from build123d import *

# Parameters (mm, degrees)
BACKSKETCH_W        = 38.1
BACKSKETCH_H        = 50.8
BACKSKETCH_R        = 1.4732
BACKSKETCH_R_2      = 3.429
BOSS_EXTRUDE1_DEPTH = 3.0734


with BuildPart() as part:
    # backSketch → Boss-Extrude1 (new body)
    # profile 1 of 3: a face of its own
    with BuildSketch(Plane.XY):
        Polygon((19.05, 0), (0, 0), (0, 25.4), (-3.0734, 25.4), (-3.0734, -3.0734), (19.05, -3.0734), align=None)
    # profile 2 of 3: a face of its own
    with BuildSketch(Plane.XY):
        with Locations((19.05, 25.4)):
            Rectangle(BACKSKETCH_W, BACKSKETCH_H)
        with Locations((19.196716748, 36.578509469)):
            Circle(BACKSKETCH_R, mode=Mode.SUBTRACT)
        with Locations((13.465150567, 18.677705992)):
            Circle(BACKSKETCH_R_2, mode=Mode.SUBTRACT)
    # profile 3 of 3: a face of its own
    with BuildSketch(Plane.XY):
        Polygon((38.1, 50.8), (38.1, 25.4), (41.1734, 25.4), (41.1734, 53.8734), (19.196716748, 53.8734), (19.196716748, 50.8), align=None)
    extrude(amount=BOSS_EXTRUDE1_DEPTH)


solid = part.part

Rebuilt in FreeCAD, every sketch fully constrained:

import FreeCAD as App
import Part
import Sketcher
Q = App.Units.Quantity

doc = App.newDocument("Part")
body = doc.addObject("PartDesign::Body", "Body")

sketch1 = doc.addObject("Sketcher::SketchObject", "Sketch")
body.addObject(sketch1)
sketch1.AttachmentSupport = (doc.XY_Plane, [""])
sketch1.MapMode = "FlatFace"
sketch1.addGeometry(Part.LineSegment(App.Vector(0, 25.4, 0), App.Vector(-3.0734, 25.4, 0)), False)
sketch1.addGeometry(Part.LineSegment(App.Vector(-3.0734, 25.4, 0), App.Vector(-3.0734, -3.0734, 0)), False)
sketch1.addGeometry(Part.LineSegment(App.Vector(-3.0734, -3.0734, 0), App.Vector(19.05, -3.0734, 0)), False)
sketch1.addGeometry(Part.LineSegment(App.Vector(19.05, -3.0734, 0), App.Vector(19.05, 0, 0)), False)
sketch1.addGeometry(Part.LineSegment(App.Vector(19.05, 0, 0), App.Vector(38.1, 0, 0)), False)
sketch1.addGeometry(Part.LineSegment(App.Vector(38.1, 0, 0), App.Vector(38.1, 25.4, 0)), False)
sketch1.addGeometry(Part.LineSegment(App.Vector(38.1, 25.4, 0), App.Vector(41.1734, 25.4, 0)), False)
sketch1.addGeometry(Part.LineSegment(App.Vector(41.1734, 25.4, 0), App.Vector(41.1734, 53.8734, 0)), False)
sketch1.addGeometry(Part.LineSegment(App.Vector(41.1734, 53.8734, 0), App.Vector(19.196717, 53.8734, 0)), False)
sketch1.addGeometry(Part.LineSegment(App.Vector(19.196717, 53.8734, 0), App.Vector(19.196717, 50.8, 0)), False)
sketch1.addGeometry(Part.LineSegment(App.Vector(19.196717, 50.8, 0), App.Vector(0, 50.8, 0)), False)
sketch1.addGeometry(Part.LineSegment(App.Vector(0, 50.8, 0), App.Vector(0, 25.4, 0)), False)
sketch1.addGeometry(Part.Circle(App.Vector(13.465151, 18.677706, 0), App.Vector(0, 0, 1), 3.429), False)
sketch1.addGeometry(Part.Circle(App.Vector(19.196717, 36.578509, 0), App.Vector(0, 0, 1), 1.4732), False)
sketch1.addConstraint(Sketcher.Constraint("Coincident", 0, 2, 1, 1))
sketch1.addConstraint(Sketcher.Constraint("Coincident", 1, 2, 2, 1))
sketch1.addConstraint(Sketcher.Constraint("Coincident", 2, 2, 3, 1))
sketch1.addConstraint(Sketcher.Constraint("Coincident", 3, 2, 4, 1))
sketch1.addConstraint(Sketcher.Constraint("Coincident", 4, 2, 5, 1))
sketch1.addConstraint(Sketcher.Constraint("Coincident", 5, 2, 6, 1))
sketch1.addConstraint(Sketcher.Constraint("Coincident", 6, 2, 7, 1))
sketch1.addConstraint(Sketcher.Constraint("Coincident", 7, 2, 8, 1))
sketch1.addConstraint(Sketcher.Constraint("Coincident", 8, 2, 9, 1))
sketch1.addConstraint(Sketcher.Constraint("Coincident", 9, 2, 10, 1))
sketch1.addConstraint(Sketcher.Constraint("Coincident", 10, 2, 11, 1))
sketch1.addConstraint(Sketcher.Constraint("Coincident", 11, 2, 0, 1))
sketch1.addConstraint(Sketcher.Constraint("Horizontal", 0))
sketch1.addConstraint(Sketcher.Constraint("Vertical", 1))
sketch1.addConstraint(Sketcher.Constraint("Horizontal", 2))
sketch1.addConstraint(Sketcher.Constraint("Vertical", 3))
sketch1.addConstraint(Sketcher.Constraint("Horizontal", 4))
sketch1.addConstraint(Sketcher.Constraint("Vertical", 5))
sketch1.addConstraint(Sketcher.Constraint("Horizontal", 6))
sketch1.addConstraint(Sketcher.Constraint("Vertical", 7))
sketch1.addConstraint(Sketcher.Constraint("Horizontal", 8))
sketch1.addConstraint(Sketcher.Constraint("Vertical", 9))
sketch1.addConstraint(Sketcher.Constraint("Horizontal", 10))
sketch1.addConstraint(Sketcher.Constraint("Vertical", 11))
sketch1.addConstraint(Sketcher.Constraint("PointOnObject", 3, 2, -1))
sketch1.addConstraint(Sketcher.Constraint("PointOnObject", 10, 2, -2))
sketch1.addConstraint(Sketcher.Constraint("Horizontal", 0, 2, 5, 2))
sketch1.addConstraint(Sketcher.Constraint("Vertical", 13, 3, 8, 2))
sketch1.addConstraint(Sketcher.Constraint("Equal", 0, 6))
sketch1.addConstraint(Sketcher.Constraint("Equal", 6, 3))
sketch1.addConstraint(Sketcher.Constraint("Equal", 1, 7))
sketch1.addConstraint(Sketcher.Constraint("Equal", 3, 9))
sketch1.addConstraint(Sketcher.Constraint("Diameter", 12, Q("0.27 in")))
sketch1.addConstraint(Sketcher.Constraint("DistanceY", 5, 1, 5, 2, Q("1 in")))
sketch1.addConstraint(Sketcher.Constraint("Diameter", 13, Q("0.116 in")))
sketch1.addConstraint(Sketcher.Constraint("DistanceX", 4, 1, 4, 2, Q("0.75 in")))
sketch1.addConstraint(Sketcher.Constraint("DistanceX", -1, 1, 4, 2, Q("1.5 in")))
sketch1.addConstraint(Sketcher.Constraint("DistanceX", 0, 2, 0, 1, Q("0.121 in")))
sketch1.addConstraint(Sketcher.Constraint("DistanceX", 8, 2, 8, 1, 21.976683))
sketch1.addConstraint(Sketcher.Constraint("DistanceX", -1, 1, 12, 3, 13.465151))
sketch1.addConstraint(Sketcher.Constraint("DistanceY", -1, 1, 13, 3, 36.578509))
sketch1.addConstraint(Sketcher.Constraint("DistanceY", -1, 1, 12, 3, 18.677706))
pad1 = doc.addObject("PartDesign::Pad", "Pad")
body.addObject(pad1)
pad1.Profile = sketch1
pad1.Length = Q("0.121 in")

doc.recompute()
